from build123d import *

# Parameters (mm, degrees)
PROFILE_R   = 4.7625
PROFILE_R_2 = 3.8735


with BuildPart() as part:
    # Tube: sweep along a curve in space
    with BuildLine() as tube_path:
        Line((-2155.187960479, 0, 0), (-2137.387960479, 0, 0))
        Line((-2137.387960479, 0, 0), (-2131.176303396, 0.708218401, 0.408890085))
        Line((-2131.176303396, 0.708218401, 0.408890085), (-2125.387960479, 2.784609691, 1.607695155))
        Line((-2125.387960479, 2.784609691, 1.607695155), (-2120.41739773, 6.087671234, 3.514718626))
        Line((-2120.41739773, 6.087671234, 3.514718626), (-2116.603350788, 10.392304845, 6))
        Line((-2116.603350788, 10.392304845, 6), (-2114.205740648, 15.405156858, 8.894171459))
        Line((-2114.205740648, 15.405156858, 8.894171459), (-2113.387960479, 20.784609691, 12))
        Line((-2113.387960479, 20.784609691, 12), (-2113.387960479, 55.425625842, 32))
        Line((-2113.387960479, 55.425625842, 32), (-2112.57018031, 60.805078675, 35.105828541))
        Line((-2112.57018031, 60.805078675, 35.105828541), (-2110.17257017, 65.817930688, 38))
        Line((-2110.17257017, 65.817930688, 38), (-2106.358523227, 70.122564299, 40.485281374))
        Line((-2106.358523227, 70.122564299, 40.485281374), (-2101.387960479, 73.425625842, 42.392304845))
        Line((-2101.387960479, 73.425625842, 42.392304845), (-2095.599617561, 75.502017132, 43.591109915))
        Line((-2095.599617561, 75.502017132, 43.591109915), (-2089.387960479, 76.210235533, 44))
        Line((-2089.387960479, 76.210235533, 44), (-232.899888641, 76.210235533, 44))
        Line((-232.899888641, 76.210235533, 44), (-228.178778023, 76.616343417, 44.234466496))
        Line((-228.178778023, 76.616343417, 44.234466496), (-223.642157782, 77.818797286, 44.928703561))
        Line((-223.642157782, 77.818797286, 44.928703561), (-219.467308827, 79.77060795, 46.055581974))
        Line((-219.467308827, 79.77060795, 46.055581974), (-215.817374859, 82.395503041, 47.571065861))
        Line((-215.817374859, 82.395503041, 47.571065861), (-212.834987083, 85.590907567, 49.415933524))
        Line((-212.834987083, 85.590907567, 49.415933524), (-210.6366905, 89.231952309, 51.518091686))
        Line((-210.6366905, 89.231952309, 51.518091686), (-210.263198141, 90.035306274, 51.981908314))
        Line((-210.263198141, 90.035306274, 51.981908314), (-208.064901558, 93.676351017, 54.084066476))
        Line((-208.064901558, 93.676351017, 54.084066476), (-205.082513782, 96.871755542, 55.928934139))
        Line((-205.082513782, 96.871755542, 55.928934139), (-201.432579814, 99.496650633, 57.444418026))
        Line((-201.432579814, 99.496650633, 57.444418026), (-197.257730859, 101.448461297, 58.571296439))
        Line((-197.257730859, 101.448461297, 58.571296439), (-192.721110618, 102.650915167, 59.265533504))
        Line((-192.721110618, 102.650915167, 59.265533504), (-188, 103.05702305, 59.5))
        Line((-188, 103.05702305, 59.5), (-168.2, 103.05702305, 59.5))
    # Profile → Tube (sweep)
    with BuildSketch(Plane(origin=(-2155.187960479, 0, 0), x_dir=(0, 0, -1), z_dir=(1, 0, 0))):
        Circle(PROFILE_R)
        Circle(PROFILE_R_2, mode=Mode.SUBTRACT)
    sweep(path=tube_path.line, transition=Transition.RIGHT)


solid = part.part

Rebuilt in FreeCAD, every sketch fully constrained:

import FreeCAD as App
import Part
import Sketcher

V = App.Vector
Q = App.Units.Quantity

doc = App.newDocument("Part")
body = doc.addObject("PartDesign::Body", "Body")

sketch1 = doc.addObject("Sketcher::SketchObject", "Sketch")
body.addObject(sketch1)
sketch1.AttachmentSupport = (doc.YZ_Plane, [""])
sketch1.MapMode = "FlatFace"
sketch1.AttachmentOffset = App.Placement(V(0, 0, -2155.18796), App.Rotation())
sketch1.addGeometry(Part.Circle(V(0, 0, 0), V(0, 0, 1), 4.7625), False)
sketch1.addGeometry(Part.Circle(V(0, 0, 0), V(0, 0, 1), 3.8735), False)
sketch1.addConstraint(Sketcher.Constraint("Coincident", 0, 3, -1, 1))
sketch1.addConstraint(Sketcher.Constraint("Coincident", 1, 3, -1, 1))
sketch1.addConstraint(Sketcher.Constraint("Diameter", 0, 9.525))
sketch1.addConstraint(Sketcher.Constraint("Diameter", 1, 7.747))

sketch2 = doc.addObject("Sketcher::SketchObject", "Sketch001")
body.addObject(sketch2)
sketch2.Placement = App.Placement(V(0, 0, 0), App.Rotation(V(0, -0.866025404, -0.5), V(1, 0, 0), V(0, -0.5, 0.866025404), "ZXY"))
sketch2.addGeometry(Part.LineSegment(V(0, -2155.187962, 0), V(0, -2137.387962, 0)), False)
sketch2.addGeometry(Part.LineSegment(V(0, -2137.387962, 0), V(-0.81778, -2131.176305, 0)), False)
sketch2.addGeometry(Part.LineSegment(V(-0.81778, -2131.176305, 0), V(-3.21539, -2125.387962, 0)), False)
sketch2.addGeometry(Part.LineSegment(V(-3.21539, -2125.387962, 0), V(-7.029437, -2120.417399, 0)), False)
sketch2.addGeometry(Part.LineSegment(V(-7.029437, -2120.417399, 0), V(-12, -2116.603352, 0)), False)
sketch2.addGeometry(Part.LineSegment(V(-12, -2116.603352, 0), V(-17.788343, -2114.205742, 0)), False)
sketch2.addGeometry(Part.LineSegment(V(-17.788343, -2114.205742, 0), V(-24, -2113.387962, 0)), False)
sketch2.addGeometry(Part.LineSegment(V(-24, -2113.387962, 0), V(-64, -2113.387962, 0)), False)
sketch2.addGeometry(Part.LineSegment(V(-64, -2113.387962, 0), V(-70.211657, -2112.570182, 0)), False)
sketch2.addGeometry(Part.LineSegment(V(-70.211657, -2112.570182, 0), V(-76, -2110.172572, 0)), False)
sketch2.addGeometry(Part.LineSegment(V(-76, -2110.172572, 0), V(-80.970563, -2106.358525, 0)), False)
sketch2.addGeometry(Part.LineSegment(V(-80.970563, -2106.358525, 0), V(-84.78461, -2101.387962, 0)), False)
sketch2.addGeometry(Part.LineSegment(V(-84.78461, -2101.387962, 0), V(-87.18222, -2095.599619, 0)), False)
sketch2.addGeometry(Part.LineSegment(V(-87.18222, -2095.599619, 0), V(-88, -2089.387962, 0)), False)
sketch2.addGeometry(Part.LineSegment(V(-88, -2089.387962, 0), V(-88, -232.899889, 0)), False)
sketch2.addGeometry(Part.LineSegment(V(-88, -232.899889, 0), V(-88.468933, -228.178778, 0)), False)
sketch2.addGeometry(Part.LineSegment(V(-88.468933, -228.178778, 0), V(-89.857407, -223.642158, 0)), False)
sketch2.addGeometry(Part.LineSegment(V(-89.857407, -223.642158, 0), V(-92.111164, -219.467309, 0)), False)
sketch2.addGeometry(Part.LineSegment(V(-92.111164, -219.467309, 0), V(-95.142132, -215.817375, 0)), False)
sketch2.addGeometry(Part.LineSegment(V(-95.142132, -215.817375, 0), V(-98.831867, -212.834987, 0)), False)
sketch2.addGeometry(Part.LineSegment(V(-98.831867, -212.834987, 0), V(-103.036183, -210.636691, 0)), False)
sketch2.addGeometry(Part.LineSegment(V(-103.036183, -210.636691, 0), V(-103.963817, -210.263198, 0)), False)
sketch2.addGeometry(Part.LineSegment(V(-103.963817, -210.263198, 0), V(-108.168133, -208.064902, 0)), False)
sketch2.addGeometry(Part.LineSegment(V(-108.168133, -208.064902, 0), V(-111.857868, -205.082514, 0)), False)
sketch2.addGeometry(Part.LineSegment(V(-111.857868, -205.082514, 0), V(-114.888836, -201.43258, 0)), False)
sketch2.addGeometry(Part.LineSegment(V(-114.888836, -201.43258, 0), V(-117.142593, -197.257731, 0)), False)
sketch2.addGeometry(Part.LineSegment(V(-117.142593, -197.257731, 0), V(-118.531067, -192.721111, 0)), False)
sketch2.addGeometry(Part.LineSegment(V(-118.531067, -192.721111, 0), V(-119, -188, 0)), False)
sketch2.addGeometry(Part.LineSegment(V(-119, -188, 0), V(-119, -168.2, 0)), False)
sketch2.addConstraint(Sketcher.Constraint("Coincident", 0, 2, 1, 1))
sketch2.addConstraint(Sketcher.Constraint("Coincident", 1, 2, 2, 1))
sketch2.addConstraint(Sketcher.Constraint("Coincident", 2, 2, 3, 1))
sketch2.addConstraint(Sketcher.Constraint("Coincident", 3, 2, 4, 1))
sketch2.addConstraint(Sketcher.Constraint("Coincident", 4, 2, 5, 1))
sketch2.addConstraint(Sketcher.Constraint("Coincident", 5, 2, 6, 1))
sketch2.addConstraint(Sketcher.Constraint("Coincident", 6, 2, 7, 1))
sketch2.addConstraint(Sketcher.Constraint("Coincident", 7, 2, 8, 1))
sketch2.addConstraint(Sketcher.Constraint("Coincident", 8, 2, 9, 1))
sketch2.addConstraint(Sketcher.Constraint("Coincident", 9, 2, 10, 1))
sketch2.addConstraint(Sketcher.Constraint("Coincident", 10, 2, 11, 1))
sketch2.addConstraint(Sketcher.Constraint("Coincident", 11, 2, 12, 1))
sketch2.addConstraint(Sketcher.Constraint("Coincident", 12, 2, 13, 1))
sketch2.addConstraint(Sketcher.Constraint("Coincident", 13, 2, 14, 1))
sketch2.addConstraint(Sketcher.Constraint("Coincident", 14, 2, 15, 1))
sketch2.addConstraint(Sketcher.Constraint("Coincident", 15, 2, 16, 1))
sketch2.addConstraint(Sketcher.Constraint("Coincident", 16, 2, 17, 1))
sketch2.addConstraint(Sketcher.Constraint("Coincident", 17, 2, 18, 1))
sketch2.addConstraint(Sketcher.Constraint("Coincident", 18, 2, 19, 1))
sketch2.addConstraint(Sketcher.Constraint("Coincident", 19, 2, 20, 1))
sketch2.addConstraint(Sketcher.Constraint("Coincident", 20, 2, 21, 1))
sketch2.addConstraint(Sketcher.Constraint("Coincident", 21, 2, 22, 1))
sketch2.addConstraint(Sketcher.Constraint("Coincident", 22, 2, 23, 1))
sketch2.addConstraint(Sketcher.Constraint("Coincident", 23, 2, 24, 1))
sketch2.addConstraint(Sketcher.Constraint("Coincident", 24, 2, 25, 1))
sketch2.addConstraint(Sketcher.Constraint("Coincident", 25, 2, 26, 1))
sketch2.addConstraint(Sketcher.Constraint("Coincident", 26, 2, 27, 1))
sketch2.addConstraint(Sketcher.Constraint("Coincident", 27, 2, 28, 1))
sketch2.addConstraint(Sketcher.Constraint("Vertical", 0))
sketch2.addConstraint(Sketcher.Constraint("Horizontal", 7))
sketch2.addConstraint(Sketcher.Constraint("Vertical", 14))
sketch2.addConstraint(Sketcher.Constraint("Vertical", 28))
sketch2.addConstraint(Sketcher.Constraint("PointOnObject", 0, 1, -2))
sketch2.addConstraint(Sketcher.Constraint("Parallel", 6, 8))
sketch2.addConstraint(Sketcher.Constraint("Parallel", 5, 9))
sketch2.addConstraint(Sketcher.Constraint("Parallel", 4, 10))
sketch2.addConstraint(Sketcher.Constraint("Parallel", 3, 11))
sketch2.addConstraint(Sketcher.Constraint("Parallel", 2, 12))
sketch2.addConstraint(Sketcher.Constraint("Parallel", 1, 13))
sketch2.addConstraint(Sketcher.Constraint("Parallel", 20, 22))
sketch2.addConstraint(Sketcher.Constraint("Parallel", 19, 23))
sketch2.addConstraint(Sketcher.Constraint("Parallel", 18, 24))
sketch2.addConstraint(Sketcher.Constraint("Parallel", 17, 25))
sketch2.addConstraint(Sketcher.Constraint("Parallel", 16, 26))
sketch2.addConstraint(Sketcher.Constraint("Parallel", 15, 27))
sketch2.addConstraint(Sketcher.Constraint("Equal", 1, 2))
sketch2.addConstraint(Sketcher.Constraint("Equal", 2, 3))
sketch2.addConstraint(Sketcher.Constraint("Equal", 3, 4))
sketch2.addConstraint(Sketcher.Constraint("Equal", 4, 5))
sketch2.addConstraint(Sketcher.Constraint("Equal", 5, 6))
sketch2.addConstraint(Sketcher.Constraint("Equal", 6, 8))
sketch2.addConstraint(Sketcher.Constraint("Equal", 8, 9))
sketch2.addConstraint(Sketcher.Constraint("Equal", 9, 10))
sketch2.addConstraint(Sketcher.Constraint("Equal", 10, 11))
sketch2.addConstraint(Sketcher.Constraint("Equal", 11, 12))
sketch2.addConstraint(Sketcher.Constraint("Equal", 12, 13))
sketch2.addConstraint(Sketcher.Constraint("Equal", 15, 16))
sketch2.addConstraint(Sketcher.Constraint("Equal", 16, 17))
sketch2.addConstraint(Sketcher.Constraint("Equal", 17, 18))
sketch2.addConstraint(Sketcher.Constraint("Equal", 18, 19))
sketch2.addConstraint(Sketcher.Constraint("Equal", 19, 20))
sketch2.addConstraint(Sketcher.Constraint("Equal", 20, 22))
sketch2.addConstraint(Sketcher.Constraint("Equal", 22, 23))
sketch2.addConstraint(Sketcher.Constraint("Equal", 23, 24))
sketch2.addConstraint(Sketcher.Constraint("Equal", 24, 25))
sketch2.addConstraint(Sketcher.Constraint("Equal", 25, 26))
sketch2.addConstraint(Sketcher.Constraint("Equal", 26, 27))
sketch2.addConstraint(Sketcher.Constraint("DistanceX", 7, 2, 7, 1, 40.0))
sketch2.addConstraint(Sketcher.Constraint("Distance", 21, 1.0))
sketch2.addConstraint(Sketcher.Constraint("DistanceY", 0, 1, 0, 2, 17.8))
sketch2.addConstraint(Sketcher.Constraint("DistanceY", 28, 1, 28, 2, 19.8))
sketch2.addConstraint(Sketcher.Constraint("DistanceX", 4, 2, -1, 1, 12.0))
sketch2.addConstraint(Sketcher.Constraint("DistanceX", 6, 2, -1, 1, 24.0))
sketch2.addConstraint(Sketcher.Constraint("DistanceX", 27, 2, -1, 1, 119.0))
sketch2.addConstraint(Sketcher.Constraint("DistanceY", 27, 2, -1, 1, 188.0))
sketch2.addConstraint(Sketcher.Constraint("Angle", 1, Q("97.5 deg")))
sketch2.addConstraint(Sketcher.Constraint("Angle", 2, Q("112.5 deg")))
sketch2.addConstraint(Sketcher.Constraint("Angle", 3, Q("127.5 deg")))
sketch2.addConstraint(Sketcher.Constraint("Angle", 4, Q("142.5 deg")))
sketch2.addConstraint(Sketcher.Constraint("Angle", 5, Q("157.5 deg")))
sketch2.addConstraint(Sketcher.Constraint("DistanceX", 22, 2, 18, 2, 13.026001))
sketch2.addConstraint(Sketcher.Constraint("DistanceY", 3, 2, -1, 1, 2120.417399))
sketch2.addConstraint(Sketcher.Constraint("DistanceY", 21, 2, -1, 1, 210.263198))
sketch2.addConstraint(Sketcher.Constraint("DistanceY", 22, 2, -1, 1, 208.064902))
sketch2.addConstraint(Sketcher.Constraint("DistanceX", 18, 2, 15, 2, 6.673199))
sketch2.addConstraint(Sketcher.Constraint("DistanceY", 14, 1, 14, 2, 1856.488073))
sketch2.addConstraint(Sketcher.Constraint("DistanceY", 15, 2, -1, 1, 228.178778))
sketch2.addConstraint(Sketcher.Constraint("DistanceY", 17, 2, -1, 1, 219.467309))
doc.recompute()

additivepipe = doc.addObject("PartDesign::AdditivePipe", "AdditivePipe")
body.addObject(additivepipe)
additivepipe.Profile = sketch1
additivepipe.Spine = (sketch2, ["Edge1", "Edge2", "Edge3", "Edge4", "Edge5", "Edge6", "Edge7", "Edge8", "Edge9", "Edge10", "Edge11", "Edge12", "Edge13", "Edge14", "Edge15", "Edge16", "Edge17", "Edge18", "Edge19", "Edge20", "Edge21", "Edge22", "Edge23", "Edge24", "Edge25", "Edge26", "Edge27", "Edge28", "Edge29"])
additivepipe.Transition = "Right corner"

doc.recompute()
